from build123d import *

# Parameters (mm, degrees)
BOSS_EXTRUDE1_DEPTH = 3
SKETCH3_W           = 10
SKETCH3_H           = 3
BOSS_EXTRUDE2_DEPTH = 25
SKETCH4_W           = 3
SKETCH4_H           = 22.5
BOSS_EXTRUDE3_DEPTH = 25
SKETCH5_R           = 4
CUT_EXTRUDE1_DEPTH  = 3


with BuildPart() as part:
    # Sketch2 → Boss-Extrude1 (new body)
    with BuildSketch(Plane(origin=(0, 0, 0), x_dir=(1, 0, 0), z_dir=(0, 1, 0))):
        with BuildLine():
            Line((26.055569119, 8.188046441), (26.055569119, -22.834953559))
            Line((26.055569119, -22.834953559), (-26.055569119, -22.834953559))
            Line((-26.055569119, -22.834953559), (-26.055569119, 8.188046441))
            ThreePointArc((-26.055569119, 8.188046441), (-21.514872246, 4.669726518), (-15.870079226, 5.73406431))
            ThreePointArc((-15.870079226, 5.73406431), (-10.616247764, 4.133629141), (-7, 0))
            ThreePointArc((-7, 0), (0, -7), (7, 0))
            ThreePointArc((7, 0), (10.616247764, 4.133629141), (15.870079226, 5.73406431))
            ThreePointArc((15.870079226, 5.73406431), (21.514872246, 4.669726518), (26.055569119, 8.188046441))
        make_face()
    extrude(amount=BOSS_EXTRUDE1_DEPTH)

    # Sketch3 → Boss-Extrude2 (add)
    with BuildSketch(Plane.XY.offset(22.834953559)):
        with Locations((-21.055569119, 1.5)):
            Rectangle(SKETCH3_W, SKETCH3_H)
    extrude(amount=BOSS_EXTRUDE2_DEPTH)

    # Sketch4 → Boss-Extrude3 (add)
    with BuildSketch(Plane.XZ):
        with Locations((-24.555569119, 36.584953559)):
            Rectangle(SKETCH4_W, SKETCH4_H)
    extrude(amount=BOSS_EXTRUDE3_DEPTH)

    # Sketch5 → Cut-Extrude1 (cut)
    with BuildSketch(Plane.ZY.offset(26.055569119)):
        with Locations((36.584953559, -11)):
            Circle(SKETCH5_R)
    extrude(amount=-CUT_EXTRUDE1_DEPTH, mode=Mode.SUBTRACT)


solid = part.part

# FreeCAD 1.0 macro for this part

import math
import FreeCAD as App
import Part
import Sketcher
from FreeCAD import Vector


def add_polygon(sketch, points):
    """Adds a closed chain of lines whose ends are joined by coincident constraints."""
    first, n = sketch.GeometryCount, len(points)
    for a, b in zip(points, points[1:] + points[:1]):
        sketch.addGeometry(Part.LineSegment(App.Vector(*a, 0), App.Vector(*b, 0)), False)
    for i in range(n):
        sketch.addConstraint(Sketcher.Constraint("Coincident", first + i, 2, first + (i + 1) % n, 1))

doc = App.newDocument("Part")
params = doc.addObject("Spreadsheet::Sheet", "Params")
for row, (alias, value) in enumerate([
    ("sketch1_radius", "7 mm"),
    ("sketch1_radius2", "10 mm"),
    ("pad1_length", "3 mm"),
    ("sketch2_width", "10 mm"),
    ("sketch2_height", "3 mm"),
    ("pad2_length", "25 mm"),
    ("sketch3_width", "3 mm"),
    ("sketch3_height", "22.5 mm"),
    ("pad3_length", "25 mm"),
    ("sketch4_diameter", "8 mm"),
    ("pocket1_length", "3 mm"),
], start=1):
    params.set(f"A{row}", alias)
    params.set(f"B{row}", "=" + value)
    params.setAlias(f"B{row}", alias)

body = doc.addObject("PartDesign::Body", "Body")

# Sketch on XZ plane
sketch1 = body.newObject("Sketcher::SketchObject", "Sketch")
sketch1.AttachmentSupport = (doc.getObject("XZ_Plane"), [""])
sketch1.MapMode = "FlatFace"
sketch1.addGeometry(Part.LineSegment(Vector(26, 23, 0), Vector(26, -8, 0)), False)
sketch1.addGeometry(Part.ArcOfCircle(Part.Circle(Vector(20, -11, 0), Vector(0, 0, 1), 7), math.radians(28), math.radians(125)), False)
sketch1.addGeometry(Part.ArcOfCircle(Part.Circle(Vector(16, 4, 0), Vector(0, 0, 1), 10), math.radians(-155), math.radians(-91)), False)
sketch1.addGeometry(Part.ArcOfCircle(Part.Circle(Vector(0, 0, 0), Vector(0, 0, 1), 7), math.radians(0), math.radians(180)), False)
sketch1.addGeometry(Part.ArcOfCircle(Part.Circle(Vector(-16, 4, 0), Vector(0, 0, 1), 10), math.radians(-89), math.radians(-25)), False)
sketch1.addGeometry(Part.ArcOfCircle(Part.Circle(Vector(-20, -11, 0), Vector(0, 0, 1), 7), math.radians(55), math.radians(152)), False)
sketch1.addGeometry(Part.LineSegment(Vector(-26, -8, 0), Vector(-26, 23, 0)), False)
sketch1.addGeometry(Part.LineSegment(Vector(-26, 23, 0), Vector(26, 23, 0)), False)
sketch1.addConstraint(Sketcher.Constraint("Coincident", 0, 2, 1, 1))
sketch1.addConstraint(Sketcher.Constraint("Coincident", 1, 2, 2, 2))
sketch1.addConstraint(Sketcher.Constraint("Coincident", 2, 1, 3, 1))
sketch1.addConstraint(Sketcher.Constraint("Coincident", 3, 2, 4, 2))
sketch1.addConstraint(Sketcher.Constraint("Coincident", 4, 1, 5, 1))
sketch1.addConstraint(Sketcher.Constraint("Coincident", 5, 2, 6, 1))
sketch1.addConstraint(Sketcher.Constraint("Coincident", 6, 2, 7, 1))
sketch1.addConstraint(Sketcher.Constraint("Coincident", 7, 2, 0, 1))
sketch1.addConstraint(Sketcher.Constraint("Vertical", 0))
sketch1.addConstraint(Sketcher.Constraint("Vertical", 6))
sketch1.addConstraint(Sketcher.Constraint("Horizontal", 7))
sketch1.addConstraint(Sketcher.Constraint("Coincident", 3, 3, -1, 1))
sketch1.addConstraint(Sketcher.Constraint("Equal", 1, 3))
sketch1.addConstraint(Sketcher.Constraint("Equal", 2, 4))
sketch1.addConstraint(Sketcher.Constraint("Equal", 3, 5))
sketch1.addConstraint(Sketcher.Constraint("Symmetric", 2, 3, 4, 3, -2))
sketch1.addConstraint(Sketcher.Constraint("Symmetric", 1, 3, 5, 3, -2))
sketch1.addConstraint(Sketcher.Constraint("PointOnObject", 2, 1, -1))
sketch1.addConstraint(Sketcher.Constraint("Horizontal", 0, 2, 5, 2))
sketch1.addConstraint(Sketcher.Constraint("Radius", 1, 7.0))
sketch1.addConstraint(Sketcher.Constraint("Radius", 2, 10.0))
sketch1.addConstraint(Sketcher.Constraint("DistanceY", 0, 2, 0, 1, 31.023))
sketch1.addConstraint(Sketcher.Constraint("DistanceY", 1, 3, -1, 1, 11.475))
sketch1.addConstraint(Sketcher.Constraint("DistanceX", 7, 1, 7, 2, 52.111138))
sketch1.addConstraint(Sketcher.Constraint("DistanceX", -1, 1, 1, 2, 15.870079))
sketch1.addConstraint(Sketcher.Constraint("DistanceX", 4, 3, 1, 3, 35.92044))
sketch1.setExpression("Constraints[19]", "Params.sketch1_radius")
sketch1.setExpression("Constraints[20]", "Params.sketch1_radius2")
pad1 = body.newObject("PartDesign::Pad", "Pad")
pad1.Profile = sketch1
pad1.setExpression("Length", "Params.pad1_length")
pad1.Reversed = True

# Sketch on XY plane
sketch2 = body.newObject("Sketcher::SketchObject", "Sketch001")
sketch2.AttachmentSupport = (doc.getObject("XY_Plane"), [""])
sketch2.MapMode = "FlatFace"
sketch2.AttachmentOffset = App.Placement(Vector(0, 0, 22.834954), App.Rotation())
add_polygon(sketch2, [(-26.1, 3), (-26.1, 0), (-16.1, 0), (-16.1, 3)])  # lines 0-3
sketch2.addConstraint(Sketcher.Constraint("Vertical", 0))
sketch2.addConstraint(Sketcher.Constraint("Horizontal", 1))
sketch2.addConstraint(Sketcher.Constraint("Vertical", 2))
sketch2.addConstraint(Sketcher.Constraint("Horizontal", 3))
sketch2.addConstraint(Sketcher.Constraint("PointOnObject", 0, 2, -1))
sketch2.addConstraint(Sketcher.Constraint("DistanceX", 1, 1, 1, 2, 10.0))
sketch2.addConstraint(Sketcher.Constraint("DistanceY", 0, 2, 0, 1, 3.0))
sketch2.addConstraint(Sketcher.Constraint("DistanceX", 0, 2, -1, 1, 26.055569))
sketch2.setExpression("Constraints[9]", "Params.sketch2_width")
sketch2.setExpression("Constraints[10]", "Params.sketch2_height")
pad2 = body.newObject("PartDesign::Pad", "Pad001")
pad2.Profile = sketch2
pad2.setExpression("Length", "Params.pad2_length")

# Sketch on XZ plane
sketch3 = body.newObject("Sketcher::SketchObject", "Sketch002")
sketch3.AttachmentSupport = (doc.getObject("XZ_Plane"), [""])
sketch3.MapMode = "FlatFace"
add_polygon(sketch3, [(-26.1, 47.8), (-26.1, 25.3), (-23.1, 25.3), (-23.1, 47.8)])  # lines 0-3
sketch3.addConstraint(Sketcher.Constraint("Vertical", 0))
sketch3.addConstraint(Sketcher.Constraint("Horizontal", 1))
sketch3.addConstraint(Sketcher.Constraint("Vertical", 2))
sketch3.addConstraint(Sketcher.Constraint("Horizontal", 3))
sketch3.addConstraint(Sketcher.Constraint("DistanceX", 1, 1, 1, 2, 3.0))
sketch3.addConstraint(Sketcher.Constraint("DistanceY", 0, 2, 0, 1, 22.5))
sketch3.addConstraint(Sketcher.Constraint("DistanceX", 0, 2, -1, 1, 26.055569))
sketch3.addConstraint(Sketcher.Constraint("DistanceY", -1, 1, 0, 2, 25.334954))
sketch3.setExpression("Constraints[8]", "Params.sketch3_width")
sketch3.setExpression("Constraints[9]", "Params.sketch3_height")
pad3 = body.newObject("PartDesign::Pad", "Pad002")
pad3.Profile = sketch3
pad3.setExpression("Length", "Params.pad3_length")

# Sketch on YZ plane
sketch4 = body.newObject("Sketcher::SketchObject", "Sketch003")
sketch4.AttachmentSupport = (doc.getObject("YZ_Plane"), [""])
sketch4.MapMode = "FlatFace"
sketch4.AttachmentOffset = App.Placement(Vector(0, 0, -26.055569), App.Rotation())
sketch4.addGeometry(Part.Circle(Vector(-11, 36.6, 0), Vector(0, 0, 1), 4), False)
sketch4.addConstraint(Sketcher.Constraint("Diameter", 0, 8.0))
sketch4.addConstraint(Sketcher.Constraint("DistanceX", 0, 3, -1, 1, 11.0))
sketch4.addConstraint(Sketcher.Constraint("DistanceY", -1, 1, 0, 3, 36.584954))
sketch4.setExpression("Constraints[0]", "Params.sketch4_diameter")
pocket1 = body.newObject("PartDesign::Pocket", "Pocket")
pocket1.Profile = sketch4
pocket1.setExpression("Length", "Params.pocket1_length")
pocket1.Reversed = True

doc.recompute()
